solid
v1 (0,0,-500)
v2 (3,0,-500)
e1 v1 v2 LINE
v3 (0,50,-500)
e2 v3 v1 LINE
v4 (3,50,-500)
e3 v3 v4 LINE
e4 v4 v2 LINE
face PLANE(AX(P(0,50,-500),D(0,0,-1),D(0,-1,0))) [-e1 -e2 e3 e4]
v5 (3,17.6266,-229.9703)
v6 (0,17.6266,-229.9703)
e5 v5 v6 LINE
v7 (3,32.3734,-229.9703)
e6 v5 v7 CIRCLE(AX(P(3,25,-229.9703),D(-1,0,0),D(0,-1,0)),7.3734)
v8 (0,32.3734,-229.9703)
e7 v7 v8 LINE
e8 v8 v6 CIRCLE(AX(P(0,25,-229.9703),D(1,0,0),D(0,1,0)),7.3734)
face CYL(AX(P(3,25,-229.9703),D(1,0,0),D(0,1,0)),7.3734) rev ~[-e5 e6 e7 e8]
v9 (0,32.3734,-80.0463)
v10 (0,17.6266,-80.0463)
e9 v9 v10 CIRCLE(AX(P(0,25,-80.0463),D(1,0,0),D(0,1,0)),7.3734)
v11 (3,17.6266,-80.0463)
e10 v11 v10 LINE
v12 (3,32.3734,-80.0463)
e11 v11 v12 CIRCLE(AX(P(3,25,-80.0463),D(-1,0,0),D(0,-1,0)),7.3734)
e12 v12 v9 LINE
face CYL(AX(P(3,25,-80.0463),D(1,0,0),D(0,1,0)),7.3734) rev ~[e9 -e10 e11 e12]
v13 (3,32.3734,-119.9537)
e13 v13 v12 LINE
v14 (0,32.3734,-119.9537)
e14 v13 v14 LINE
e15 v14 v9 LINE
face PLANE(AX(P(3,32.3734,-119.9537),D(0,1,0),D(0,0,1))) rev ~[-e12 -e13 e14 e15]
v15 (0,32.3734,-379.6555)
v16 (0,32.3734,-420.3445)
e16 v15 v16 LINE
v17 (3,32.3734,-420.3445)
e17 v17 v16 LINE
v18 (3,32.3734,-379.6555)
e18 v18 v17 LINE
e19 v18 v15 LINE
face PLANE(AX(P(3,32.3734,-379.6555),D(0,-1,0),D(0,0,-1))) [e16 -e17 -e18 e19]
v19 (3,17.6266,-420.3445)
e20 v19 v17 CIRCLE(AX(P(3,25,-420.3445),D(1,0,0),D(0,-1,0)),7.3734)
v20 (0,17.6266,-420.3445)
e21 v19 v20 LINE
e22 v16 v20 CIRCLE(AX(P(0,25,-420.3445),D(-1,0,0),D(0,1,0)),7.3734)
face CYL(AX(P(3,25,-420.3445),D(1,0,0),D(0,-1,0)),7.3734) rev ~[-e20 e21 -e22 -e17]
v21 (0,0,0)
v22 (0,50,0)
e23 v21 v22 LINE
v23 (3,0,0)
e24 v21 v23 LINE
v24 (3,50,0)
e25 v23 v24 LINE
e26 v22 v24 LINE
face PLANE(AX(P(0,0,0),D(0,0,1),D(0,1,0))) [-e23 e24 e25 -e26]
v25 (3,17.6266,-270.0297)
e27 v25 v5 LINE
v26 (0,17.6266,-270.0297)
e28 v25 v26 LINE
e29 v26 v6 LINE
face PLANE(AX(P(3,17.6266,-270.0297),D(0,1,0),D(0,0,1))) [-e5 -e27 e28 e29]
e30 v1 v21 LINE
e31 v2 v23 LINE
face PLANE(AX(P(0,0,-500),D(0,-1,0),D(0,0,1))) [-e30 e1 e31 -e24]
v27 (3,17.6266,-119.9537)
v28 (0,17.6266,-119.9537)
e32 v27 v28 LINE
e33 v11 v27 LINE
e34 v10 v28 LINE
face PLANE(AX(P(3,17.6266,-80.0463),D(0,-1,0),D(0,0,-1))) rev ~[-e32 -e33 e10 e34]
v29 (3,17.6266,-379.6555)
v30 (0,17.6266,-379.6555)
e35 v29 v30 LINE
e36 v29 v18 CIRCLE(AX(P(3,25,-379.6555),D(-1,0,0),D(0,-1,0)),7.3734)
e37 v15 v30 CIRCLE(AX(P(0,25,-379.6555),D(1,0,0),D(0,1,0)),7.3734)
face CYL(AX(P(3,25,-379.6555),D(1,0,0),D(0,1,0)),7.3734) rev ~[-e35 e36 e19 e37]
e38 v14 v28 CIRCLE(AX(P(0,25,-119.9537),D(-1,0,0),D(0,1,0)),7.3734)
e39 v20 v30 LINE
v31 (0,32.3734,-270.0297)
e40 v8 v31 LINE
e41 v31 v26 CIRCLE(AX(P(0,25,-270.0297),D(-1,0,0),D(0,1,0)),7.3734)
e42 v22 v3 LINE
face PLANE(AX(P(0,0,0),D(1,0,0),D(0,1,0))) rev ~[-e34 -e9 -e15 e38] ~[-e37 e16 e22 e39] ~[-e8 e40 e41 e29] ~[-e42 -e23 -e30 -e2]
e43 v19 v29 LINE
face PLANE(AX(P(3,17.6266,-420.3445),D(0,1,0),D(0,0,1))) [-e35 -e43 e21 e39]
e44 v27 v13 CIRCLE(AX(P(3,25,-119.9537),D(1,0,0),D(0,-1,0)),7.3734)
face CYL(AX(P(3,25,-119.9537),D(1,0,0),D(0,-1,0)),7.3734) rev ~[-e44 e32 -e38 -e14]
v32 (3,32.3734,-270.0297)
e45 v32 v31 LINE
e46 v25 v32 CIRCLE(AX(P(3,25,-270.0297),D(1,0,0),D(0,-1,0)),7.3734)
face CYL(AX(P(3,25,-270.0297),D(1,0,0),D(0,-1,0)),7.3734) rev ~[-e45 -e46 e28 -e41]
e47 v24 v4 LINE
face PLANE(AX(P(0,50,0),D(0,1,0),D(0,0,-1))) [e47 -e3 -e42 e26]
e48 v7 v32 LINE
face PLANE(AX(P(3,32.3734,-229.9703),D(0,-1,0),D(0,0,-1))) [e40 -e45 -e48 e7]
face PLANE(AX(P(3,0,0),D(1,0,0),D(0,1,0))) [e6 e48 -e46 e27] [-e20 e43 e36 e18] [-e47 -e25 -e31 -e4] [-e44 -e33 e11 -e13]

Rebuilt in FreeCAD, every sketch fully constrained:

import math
import FreeCAD as App
import Part
import Sketcher
Q = App.Units.Quantity


def add_polygon(sketch, points):
    """Adds a closed chain of lines whose ends are joined by coincident constraints."""
    first, n = sketch.GeometryCount, len(points)
    for a, b in zip(points, points[1:] + points[:1]):
        sketch.addGeometry(Part.LineSegment(App.Vector(*a, 0), App.Vector(*b, 0)), False)
    for i in range(n):
        sketch.addConstraint(Sketcher.Constraint("Coincident", first + i, 2, first + (i + 1) % n, 1))

doc = App.newDocument("Part")
body = doc.addObject("PartDesign::Body", "Body")

sketch1 = body.newObject("Sketcher::SketchObject", "Sketch")
sketch1.AttachmentSupport = (doc.getObject("YZ_Plane"), [""])
sketch1.MapMode = "FlatFace"
add_polygon(sketch1, [(50, 0), (0, 0), (0, -500), (50, -500)])
sketch1.addConstraint([
    Sketcher.Constraint("Horizontal", 0),
    Sketcher.Constraint("Vertical", 1),
    Sketcher.Constraint("Horizontal", 2),
    Sketcher.Constraint("Vertical", 3),
    Sketcher.Constraint("Coincident", 0, 2, -1, 1),
    Sketcher.Constraint("DistanceX", 0, 2, 0, 1, Q("50 mm")),
    Sketcher.Constraint("DistanceY", 1, 2, 1, 1, Q("500 mm")),
])
pad1 = body.newObject("PartDesign::Pad", "Pad")
pad1.Profile = sketch1
pad1.Length = 3

sketch2 = body.newObject("Sketcher::SketchObject", "Sketch001")
sketch2.AttachmentSupport = (doc.getObject("YZ_Plane"), [""])
sketch2.MapMode = "FlatFace"
sketch2.AttachmentOffset = App.Placement(App.Vector(0, 0, 3), App.Rotation())
sketch2.addGeometry([
    Part.ArcOfCircle(Part.Circle(App.Vector(25, -80.0463, 0), App.Vector(0, 0, 1), 7.3734), math.radians(0), math.radians(180)),
    Part.LineSegment(App.Vector(17.6266, -80.0463, 0), App.Vector(17.6266, -119.9537, 0)),
    Part.ArcOfCircle(Part.Circle(App.Vector(25, -119.9537, 0), App.Vector(0, 0, 1), 7.3734), math.radians(180), math.radians(360)),
    Part.LineSegment(App.Vector(32.3734, -119.9537, 0), App.Vector(32.3734, -80.0463, 0)),
    Part.ArcOfCircle(Part.Circle(App.Vector(25, -379.6555, 0), App.Vector(0, 0, 1), 7.3734), math.radians(0), math.radians(180)),
    Part.LineSegment(App.Vector(17.6266, -379.6555, 0), App.Vector(17.6266, -420.3445, 0)),
    Part.ArcOfCircle(Part.Circle(App.Vector(25, -420.3445, 0), App.Vector(0, 0, 1), 7.3734), math.radians(180), math.radians(360)),
    Part.LineSegment(App.Vector(32.3734, -420.3445, 0), App.Vector(32.3734, -379.6555, 0)),
    Part.ArcOfCircle(Part.Circle(App.Vector(25, -229.9703, 0), App.Vector(0, 0, 1), 7.3734), math.radians(0), math.radians(180)),
    Part.LineSegment(App.Vector(17.6266, -229.9703, 0), App.Vector(17.6266, -270.0297, 0)),
    Part.ArcOfCircle(Part.Circle(App.Vector(25, -270.0297, 0), App.Vector(0, 0, 1), 7.3734), math.radians(180), math.radians(360)),
    Part.LineSegment(App.Vector(32.3734, -270.0297, 0), App.Vector(32.3734, -229.9703, 0)),
], False)
sketch2.addConstraint([
    Sketcher.Constraint("Tangent", 0, 2, 1, 1),
    Sketcher.Constraint("Tangent", 1, 2, 2, 1),
    Sketcher.Constraint("Tangent", 2, 2, 3, 1),
    Sketcher.Constraint("Tangent", 3, 2, 0, 1),
    Sketcher.Constraint("Tangent", 4, 2, 5, 1),
    Sketcher.Constraint("Tangent", 5, 2, 6, 1),
    Sketcher.Constraint("Tangent", 6, 2, 7, 1),
    Sketcher.Constraint("Tangent", 7, 2, 4, 1),
    Sketcher.Constraint("Tangent", 8, 2, 9, 1),
    Sketcher.Constraint("Tangent", 9, 2, 10, 1),
    Sketcher.Constraint("Tangent", 10, 2, 11, 1),
    Sketcher.Constraint("Tangent", 11, 2, 8, 1),
    Sketcher.Constraint("Vertical", 1),
    Sketcher.Constraint("Vertical", 3),
    Sketcher.Constraint("Vertical", 5),
    Sketcher.Constraint("Vertical", 7),
    Sketcher.Constraint("Vertical", 9),
    Sketcher.Constraint("Vertical", 11),
    Sketcher.Constraint("Equal", 2, 4),
    Sketcher.Constraint("Equal", 6, 8),
    Sketcher.Constraint("Vertical", 2, 3, 4, 3),
    Sketcher.Constraint("Vertical", 6, 3, 8, 3),
    Sketcher.Constraint("DistanceX", -1, 1, 0, 3, Q("25 mm")),
    Sketcher.Constraint("Radius", 0, Q("7.3734 mm")),
    Sketcher.Constraint("DistanceY", 5, 2, 5, 1, Q("40.689 mm")),
    Sketcher.Constraint("DistanceY", 1, 2, 1, 1, Q("39.9074 mm")),
    Sketcher.Constraint("DistanceY", 9, 2, 9, 1, Q("40.0594 mm")),
    Sketcher.Constraint("DistanceY", 8, 3, 0, 3, Q("149.924 mm")),
    Sketcher.Constraint("DistanceY", 0, 3, -1, 1, Q("80.0463 mm")),
    Sketcher.Constraint("DistanceY", 4, 3, -1, 1, Q("379.6555 mm")),
])
pocket1 = body.newObject("PartDesign::Pocket", "Pocket")
pocket1.Profile = sketch2
pocket1.Length = 3

doc.recompute()
